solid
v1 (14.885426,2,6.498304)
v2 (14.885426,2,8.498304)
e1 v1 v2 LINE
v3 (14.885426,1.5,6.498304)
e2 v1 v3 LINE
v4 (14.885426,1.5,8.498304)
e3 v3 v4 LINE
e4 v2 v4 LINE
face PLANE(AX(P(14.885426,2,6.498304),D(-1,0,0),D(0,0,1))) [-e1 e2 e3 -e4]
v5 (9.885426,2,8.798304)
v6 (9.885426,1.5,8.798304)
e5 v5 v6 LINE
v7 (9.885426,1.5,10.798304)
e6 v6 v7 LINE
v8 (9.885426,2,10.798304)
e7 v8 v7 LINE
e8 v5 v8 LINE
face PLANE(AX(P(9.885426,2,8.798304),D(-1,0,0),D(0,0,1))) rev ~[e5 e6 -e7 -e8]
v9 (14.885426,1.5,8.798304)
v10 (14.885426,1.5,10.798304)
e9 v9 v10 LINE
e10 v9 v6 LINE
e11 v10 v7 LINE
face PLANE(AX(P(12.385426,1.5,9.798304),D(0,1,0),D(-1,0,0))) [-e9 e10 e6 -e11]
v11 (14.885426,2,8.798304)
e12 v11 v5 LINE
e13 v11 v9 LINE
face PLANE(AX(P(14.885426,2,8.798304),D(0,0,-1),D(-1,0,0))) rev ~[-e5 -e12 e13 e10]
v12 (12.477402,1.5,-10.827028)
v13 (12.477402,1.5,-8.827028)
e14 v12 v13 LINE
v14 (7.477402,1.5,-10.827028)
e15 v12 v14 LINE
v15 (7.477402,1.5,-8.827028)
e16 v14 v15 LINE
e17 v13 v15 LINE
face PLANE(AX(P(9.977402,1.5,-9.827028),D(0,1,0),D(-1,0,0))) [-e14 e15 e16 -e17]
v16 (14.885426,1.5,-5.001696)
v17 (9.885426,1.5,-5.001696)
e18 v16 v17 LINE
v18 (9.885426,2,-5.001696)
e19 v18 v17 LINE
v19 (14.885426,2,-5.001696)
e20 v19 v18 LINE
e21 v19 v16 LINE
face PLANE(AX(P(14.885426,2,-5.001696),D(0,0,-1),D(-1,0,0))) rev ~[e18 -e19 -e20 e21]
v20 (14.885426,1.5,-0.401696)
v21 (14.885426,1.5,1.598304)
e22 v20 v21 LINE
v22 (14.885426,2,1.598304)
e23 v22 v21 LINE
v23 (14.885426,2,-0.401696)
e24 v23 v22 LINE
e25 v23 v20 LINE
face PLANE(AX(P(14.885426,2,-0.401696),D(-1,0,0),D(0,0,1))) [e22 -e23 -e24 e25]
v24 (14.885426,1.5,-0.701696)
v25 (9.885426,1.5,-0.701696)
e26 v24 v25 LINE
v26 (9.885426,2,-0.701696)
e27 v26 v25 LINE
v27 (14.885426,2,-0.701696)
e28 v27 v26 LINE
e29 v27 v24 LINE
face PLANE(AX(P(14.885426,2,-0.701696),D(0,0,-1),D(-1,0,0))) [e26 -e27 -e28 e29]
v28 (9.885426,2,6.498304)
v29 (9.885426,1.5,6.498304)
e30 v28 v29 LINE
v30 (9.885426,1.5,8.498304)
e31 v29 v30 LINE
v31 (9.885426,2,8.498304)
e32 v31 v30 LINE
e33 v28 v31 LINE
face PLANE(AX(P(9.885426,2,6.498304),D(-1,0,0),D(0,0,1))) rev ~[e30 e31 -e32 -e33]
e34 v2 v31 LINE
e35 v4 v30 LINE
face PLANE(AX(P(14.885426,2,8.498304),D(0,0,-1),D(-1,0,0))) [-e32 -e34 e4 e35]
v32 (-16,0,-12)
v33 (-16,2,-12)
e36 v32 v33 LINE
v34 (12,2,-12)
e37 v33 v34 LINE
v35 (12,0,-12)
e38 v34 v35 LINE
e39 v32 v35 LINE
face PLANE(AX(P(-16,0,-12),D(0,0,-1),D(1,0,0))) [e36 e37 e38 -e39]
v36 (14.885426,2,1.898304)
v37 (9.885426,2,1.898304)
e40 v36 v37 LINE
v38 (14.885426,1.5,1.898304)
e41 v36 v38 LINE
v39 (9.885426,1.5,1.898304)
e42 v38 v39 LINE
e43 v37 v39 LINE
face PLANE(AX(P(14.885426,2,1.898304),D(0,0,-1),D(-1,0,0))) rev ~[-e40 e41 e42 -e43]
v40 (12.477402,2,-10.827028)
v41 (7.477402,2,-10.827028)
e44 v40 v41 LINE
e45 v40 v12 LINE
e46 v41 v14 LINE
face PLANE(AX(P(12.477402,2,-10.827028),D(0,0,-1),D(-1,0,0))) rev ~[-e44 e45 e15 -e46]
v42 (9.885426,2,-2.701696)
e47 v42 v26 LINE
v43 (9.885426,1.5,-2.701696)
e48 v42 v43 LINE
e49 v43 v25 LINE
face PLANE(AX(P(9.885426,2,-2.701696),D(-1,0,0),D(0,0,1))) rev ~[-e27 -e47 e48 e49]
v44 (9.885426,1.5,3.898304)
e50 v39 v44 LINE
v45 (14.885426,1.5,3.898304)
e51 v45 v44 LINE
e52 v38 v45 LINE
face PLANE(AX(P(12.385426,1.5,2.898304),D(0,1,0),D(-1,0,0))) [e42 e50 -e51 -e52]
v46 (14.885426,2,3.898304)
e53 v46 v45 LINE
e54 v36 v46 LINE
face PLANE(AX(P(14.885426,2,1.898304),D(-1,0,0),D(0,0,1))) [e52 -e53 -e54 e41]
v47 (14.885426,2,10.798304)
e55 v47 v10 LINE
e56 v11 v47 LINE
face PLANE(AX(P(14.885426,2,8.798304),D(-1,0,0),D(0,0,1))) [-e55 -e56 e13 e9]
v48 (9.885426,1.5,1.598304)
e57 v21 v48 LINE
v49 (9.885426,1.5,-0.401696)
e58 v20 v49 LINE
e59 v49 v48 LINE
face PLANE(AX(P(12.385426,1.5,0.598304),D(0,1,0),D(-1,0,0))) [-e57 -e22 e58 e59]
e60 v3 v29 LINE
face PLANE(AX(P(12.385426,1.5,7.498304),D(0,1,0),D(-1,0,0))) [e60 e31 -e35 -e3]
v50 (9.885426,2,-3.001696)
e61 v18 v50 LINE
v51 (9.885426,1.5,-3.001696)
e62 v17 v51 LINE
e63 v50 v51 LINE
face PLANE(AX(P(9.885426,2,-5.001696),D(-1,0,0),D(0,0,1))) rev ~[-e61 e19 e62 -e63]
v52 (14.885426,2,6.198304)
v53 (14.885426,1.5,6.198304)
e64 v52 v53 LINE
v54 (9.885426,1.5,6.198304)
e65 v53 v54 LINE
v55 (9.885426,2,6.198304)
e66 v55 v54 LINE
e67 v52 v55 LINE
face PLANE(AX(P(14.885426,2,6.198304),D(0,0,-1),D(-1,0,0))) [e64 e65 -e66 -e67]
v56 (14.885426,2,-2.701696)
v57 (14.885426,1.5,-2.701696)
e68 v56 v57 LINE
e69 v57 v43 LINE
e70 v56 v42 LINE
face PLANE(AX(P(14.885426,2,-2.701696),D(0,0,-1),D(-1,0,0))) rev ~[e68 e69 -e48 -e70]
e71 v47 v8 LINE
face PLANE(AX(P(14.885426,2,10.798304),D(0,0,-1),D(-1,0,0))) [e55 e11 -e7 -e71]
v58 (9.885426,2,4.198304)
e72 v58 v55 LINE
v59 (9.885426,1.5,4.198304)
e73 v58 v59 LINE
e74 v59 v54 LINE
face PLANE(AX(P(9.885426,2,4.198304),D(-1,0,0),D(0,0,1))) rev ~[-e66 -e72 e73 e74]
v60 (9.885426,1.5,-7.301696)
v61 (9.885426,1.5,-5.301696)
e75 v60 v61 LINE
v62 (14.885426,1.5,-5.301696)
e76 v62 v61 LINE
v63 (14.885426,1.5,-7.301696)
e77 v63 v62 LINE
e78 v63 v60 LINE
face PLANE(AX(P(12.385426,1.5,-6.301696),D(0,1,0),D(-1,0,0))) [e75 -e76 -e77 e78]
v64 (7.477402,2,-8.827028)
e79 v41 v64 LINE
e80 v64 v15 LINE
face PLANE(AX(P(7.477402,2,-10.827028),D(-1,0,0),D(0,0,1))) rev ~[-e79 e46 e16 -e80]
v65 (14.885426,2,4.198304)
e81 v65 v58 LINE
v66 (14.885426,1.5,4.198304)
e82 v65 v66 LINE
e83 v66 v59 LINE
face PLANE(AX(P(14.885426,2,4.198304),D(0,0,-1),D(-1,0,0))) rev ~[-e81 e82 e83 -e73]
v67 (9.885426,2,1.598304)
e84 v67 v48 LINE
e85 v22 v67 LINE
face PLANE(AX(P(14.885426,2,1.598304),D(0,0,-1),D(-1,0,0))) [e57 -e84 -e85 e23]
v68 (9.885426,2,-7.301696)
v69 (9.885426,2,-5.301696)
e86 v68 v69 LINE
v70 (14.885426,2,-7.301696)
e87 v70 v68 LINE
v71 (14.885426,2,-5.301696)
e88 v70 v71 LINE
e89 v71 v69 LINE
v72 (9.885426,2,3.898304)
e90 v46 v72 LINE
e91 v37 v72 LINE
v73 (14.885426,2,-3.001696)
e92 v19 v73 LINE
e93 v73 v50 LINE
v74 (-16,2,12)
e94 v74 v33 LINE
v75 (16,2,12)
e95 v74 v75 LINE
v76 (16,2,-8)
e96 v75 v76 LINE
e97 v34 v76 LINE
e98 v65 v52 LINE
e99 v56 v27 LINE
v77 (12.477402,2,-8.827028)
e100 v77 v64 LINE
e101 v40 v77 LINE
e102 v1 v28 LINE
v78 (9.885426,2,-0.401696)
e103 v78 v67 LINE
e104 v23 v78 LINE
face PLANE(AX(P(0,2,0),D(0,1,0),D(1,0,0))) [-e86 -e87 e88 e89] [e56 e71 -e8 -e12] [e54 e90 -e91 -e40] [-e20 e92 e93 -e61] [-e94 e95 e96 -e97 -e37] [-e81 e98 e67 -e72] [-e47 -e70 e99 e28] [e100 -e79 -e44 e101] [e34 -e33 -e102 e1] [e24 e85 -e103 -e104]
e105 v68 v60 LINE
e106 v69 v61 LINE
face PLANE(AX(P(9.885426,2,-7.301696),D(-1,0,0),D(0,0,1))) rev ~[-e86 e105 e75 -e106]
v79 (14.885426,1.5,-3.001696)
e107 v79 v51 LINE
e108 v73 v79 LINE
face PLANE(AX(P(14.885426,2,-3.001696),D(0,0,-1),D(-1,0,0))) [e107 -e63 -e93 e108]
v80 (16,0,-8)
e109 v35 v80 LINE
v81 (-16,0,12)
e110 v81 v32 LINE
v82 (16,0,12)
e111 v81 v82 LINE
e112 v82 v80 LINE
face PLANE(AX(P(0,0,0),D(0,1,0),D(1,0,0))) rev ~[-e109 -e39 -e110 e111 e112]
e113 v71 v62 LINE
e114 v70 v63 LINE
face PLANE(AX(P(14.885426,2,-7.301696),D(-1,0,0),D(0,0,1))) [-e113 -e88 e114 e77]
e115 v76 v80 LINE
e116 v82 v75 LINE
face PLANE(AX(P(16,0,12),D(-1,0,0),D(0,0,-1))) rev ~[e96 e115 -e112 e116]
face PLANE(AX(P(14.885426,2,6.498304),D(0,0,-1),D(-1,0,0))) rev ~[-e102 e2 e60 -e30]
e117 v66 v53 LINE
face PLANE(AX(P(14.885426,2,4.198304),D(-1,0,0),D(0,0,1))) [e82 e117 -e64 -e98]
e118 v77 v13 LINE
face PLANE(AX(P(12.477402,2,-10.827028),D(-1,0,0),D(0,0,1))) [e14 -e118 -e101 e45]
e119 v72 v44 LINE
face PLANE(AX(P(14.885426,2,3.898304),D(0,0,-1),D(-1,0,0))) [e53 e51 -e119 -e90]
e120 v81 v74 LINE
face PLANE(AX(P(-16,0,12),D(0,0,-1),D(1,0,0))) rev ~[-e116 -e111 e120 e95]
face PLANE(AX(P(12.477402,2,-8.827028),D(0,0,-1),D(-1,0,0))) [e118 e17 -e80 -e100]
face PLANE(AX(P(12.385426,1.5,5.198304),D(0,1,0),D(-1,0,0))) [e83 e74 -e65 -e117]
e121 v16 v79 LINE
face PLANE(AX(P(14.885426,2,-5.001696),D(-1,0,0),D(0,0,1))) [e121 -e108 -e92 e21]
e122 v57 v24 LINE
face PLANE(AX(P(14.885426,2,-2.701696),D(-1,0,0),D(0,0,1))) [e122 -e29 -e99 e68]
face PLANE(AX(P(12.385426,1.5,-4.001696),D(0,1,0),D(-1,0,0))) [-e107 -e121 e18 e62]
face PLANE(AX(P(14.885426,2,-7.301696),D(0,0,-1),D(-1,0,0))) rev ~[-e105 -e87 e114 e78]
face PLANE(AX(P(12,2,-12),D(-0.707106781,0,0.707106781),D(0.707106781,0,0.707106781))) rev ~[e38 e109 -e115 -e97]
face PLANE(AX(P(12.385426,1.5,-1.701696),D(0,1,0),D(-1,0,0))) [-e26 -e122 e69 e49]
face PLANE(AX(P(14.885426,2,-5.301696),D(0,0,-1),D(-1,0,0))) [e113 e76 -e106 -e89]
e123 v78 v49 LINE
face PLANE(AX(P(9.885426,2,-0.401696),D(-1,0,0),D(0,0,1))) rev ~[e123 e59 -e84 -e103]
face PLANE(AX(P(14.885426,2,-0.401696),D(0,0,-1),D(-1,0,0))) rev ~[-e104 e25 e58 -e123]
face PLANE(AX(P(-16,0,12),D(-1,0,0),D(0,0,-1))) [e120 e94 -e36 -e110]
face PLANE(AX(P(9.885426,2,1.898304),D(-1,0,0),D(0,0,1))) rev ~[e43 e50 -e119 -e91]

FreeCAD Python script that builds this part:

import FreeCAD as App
import Part
import Sketcher
from FreeCAD import Vector


def add_polygon(sketch, points):
    """Adds a closed chain of lines whose ends are joined by coincident constraints."""
    first, n = sketch.GeometryCount, len(points)
    for a, b in zip(points, points[1:] + points[:1]):
        sketch.addGeometry(Part.LineSegment(App.Vector(*a, 0), App.Vector(*b, 0)), False)
    for i in range(n):
        sketch.addConstraint(Sketcher.Constraint("Coincident", first + i, 2, first + (i + 1) % n, 1))

doc = App.newDocument("Part")
body = doc.addObject("PartDesign::Body", "Body")

# Sketch on XZ plane
sketch1 = doc.addObject("Sketcher::SketchObject", "Sketch")
body.addObject(sketch1)
sketch1.AttachmentSupport = (doc.XZ_Plane, [""])
sketch1.MapMode = "FlatFace"
add_polygon(sketch1, [(-16, -12), (-16, 12), (16, 12), (16, -12)])  # lines 0-3
sketch1.addConstraint([
    Sketcher.Constraint("Vertical", 0),
    Sketcher.Constraint("Horizontal", 1),
    Sketcher.Constraint("Vertical", 2),
    Sketcher.Constraint("Horizontal", 3),
    Sketcher.Constraint("Symmetric", 0, 2, 2, 2, -1, 1),
    Sketcher.Constraint("DistanceX", 1, 1, 1, 2, 32.0),
    Sketcher.Constraint("DistanceY", 0, 1, 0, 2, 24.0),
])
pad1 = doc.addObject("PartDesign::Pad", "Pad")
body.addObject(pad1)
pad1.Profile = sketch1
pad1.Length = 2
pad1.Reversed = True

# Sketch on XZ plane
sketch2 = doc.addObject("Sketcher::SketchObject", "Sketch001")
body.addObject(sketch2)
sketch2.AttachmentSupport = (doc.XZ_Plane, [""])
sketch2.MapMode = "FlatFace"
sketch2.AttachmentOffset = App.Placement(Vector(0, 0, -2), App.Rotation())
add_polygon(sketch2, [(16, -12), (12, -12), (16, -8)])  # lines 0-2
sketch2.addConstraint([
    Sketcher.Constraint("Horizontal", 0),
    Sketcher.Constraint("Vertical", 2),
    Sketcher.Constraint("Equal", 0, 2),
    Sketcher.Constraint("DistanceX", 0, 2, 0, 1, 4.0),
    Sketcher.Constraint("DistanceX", -1, 1, 0, 2, 12.0),
    Sketcher.Constraint("DistanceY", 0, 2, -1, 1, 12.0),
])
pocket1 = doc.addObject("PartDesign::Pocket", "Pocket")
body.addObject(pocket1)
pocket1.Profile = sketch2
pocket1.Length = 2
pocket1.Reversed = True

# Sketch on XZ plane
sketch3 = doc.addObject("Sketcher::SketchObject", "Sketch002")
body.addObject(sketch3)
sketch3.AttachmentSupport = (doc.XZ_Plane, [""])
sketch3.MapMode = "FlatFace"
sketch3.AttachmentOffset = App.Placement(Vector(0, 0, -2), App.Rotation())
add_polygon(sketch3, [(14.885426, 8.498304), (14.885426, 6.498304), (9.885426, 6.498304), (9.885426, 8.498304)])  # lines 0-3
add_polygon(sketch3, [(14.885426, 10.798304), (14.885426, 8.798304), (9.885426, 8.798304), (9.885426, 10.798304)])  # lines 4-7
add_polygon(sketch3, [(14.885426, 6.198304), (14.885426, 4.198304), (9.885426, 4.198304), (9.885426, 6.198304)])  # lines 8-11
add_polygon(sketch3, [(14.885426, 3.898304), (14.885426, 1.898304), (9.885426, 1.898304), (9.885426, 3.898304)])  # lines 12-15
add_polygon(sketch3, [(14.885426, 1.598304), (14.885426, -0.401696), (9.885426, -0.401696), (9.885426, 1.598304)])  # lines 16-19
add_polygon(sketch3, [(14.885426, -0.701696), (14.885426, -2.701696), (9.885426, -2.701696), (9.885426, -0.701696)])  # lines 20-23
add_polygon(sketch3, [(14.885426, -3.001696), (14.885426, -5.001696), (9.885426, -5.001696), (9.885426, -3.001696)])  # lines 24-27
add_polygon(sketch3, [(14.885426, -5.301696), (14.885426, -7.301696), (9.885426, -7.301696), (9.885426, -5.301696)])  # lines 28-31
add_polygon(sketch3, [(12.477402, -8.827028), (12.477402, -10.827028), (7.477402, -10.827028), (7.477402, -8.827028)])  # lines 32-35
sketch3.addConstraint([
    Sketcher.Constraint("Vertical", 0),
    Sketcher.Constraint("Horizontal", 1),
    Sketcher.Constraint("Vertical", 2),
    Sketcher.Constraint("Horizontal", 3),
    Sketcher.Constraint("Vertical", 4),
    Sketcher.Constraint("Horizontal", 5),
    Sketcher.Constraint("Vertical", 6),
    Sketcher.Constraint("Horizontal", 7),
    Sketcher.Constraint("Vertical", 8),
    Sketcher.Constraint("Horizontal", 9),
    Sketcher.Constraint("Vertical", 10),
    Sketcher.Constraint("Horizontal", 11),
    Sketcher.Constraint("Vertical", 12),
    Sketcher.Constraint("Horizontal", 13),
    Sketcher.Constraint("Vertical", 14),
    Sketcher.Constraint("Horizontal", 15),
    Sketcher.Constraint("Vertical", 16),
    Sketcher.Constraint("Horizontal", 17),
    Sketcher.Constraint("Vertical", 18),
    Sketcher.Constraint("Horizontal", 19),
    Sketcher.Constraint("Vertical", 20),
    Sketcher.Constraint("Horizontal", 21),
    Sketcher.Constraint("Vertical", 22),
    Sketcher.Constraint("Horizontal", 23),
    Sketcher.Constraint("Vertical", 24),
    Sketcher.Constraint("Horizontal", 25),
    Sketcher.Constraint("Vertical", 26),
    Sketcher.Constraint("Horizontal", 27),
    Sketcher.Constraint("Vertical", 28),
    Sketcher.Constraint("Horizontal", 29),
    Sketcher.Constraint("Vertical", 30),
    Sketcher.Constraint("Horizontal", 31),
    Sketcher.Constraint("Vertical", 32),
    Sketcher.Constraint("Horizontal", 33),
    Sketcher.Constraint("Vertical", 34),
    Sketcher.Constraint("Horizontal", 35),
    Sketcher.Constraint("Vertical", 3, 2, 4, 2),
    Sketcher.Constraint("Vertical", 2, 2, 5, 2),
    Sketcher.Constraint("Vertical", 7, 2, 8, 2),
    Sketcher.Constraint("Vertical", 6, 2, 9, 2),
    Sketcher.Constraint("Vertical", 11, 2, 12, 2),
    Sketcher.Constraint("Vertical", 10, 2, 13, 2),
    Sketcher.Constraint("Vertical", 15, 2, 16, 2),
    Sketcher.Constraint("Vertical", 14, 2, 17, 2),
    Sketcher.Constraint("Vertical", 19, 2, 20, 2),
    Sketcher.Constraint("Vertical", 18, 2, 21, 2),
    Sketcher.Constraint("Vertical", 23, 2, 24, 2),
    Sketcher.Constraint("Vertical", 22, 2, 25, 2),
    Sketcher.Constraint("Vertical", 27, 2, 28, 2),
    Sketcher.Constraint("Vertical", 26, 2, 29, 2),
    Sketcher.Constraint("Equal", 31, 33),
    Sketcher.Constraint("Equal", 2, 4),
    Sketcher.Constraint("Equal", 6, 8),
    Sketcher.Constraint("Equal", 10, 12),
    Sketcher.Constraint("Equal", 14, 16),
    Sketcher.Constraint("Equal", 18, 20),
    Sketcher.Constraint("Equal", 22, 24),
    Sketcher.Constraint("Equal", 26, 28),
    Sketcher.Constraint("Equal", 30, 32),
    Sketcher.Constraint("DistanceX", 1, 2, 1, 1, 5.0),
    Sketcher.Constraint("DistanceY", 0, 2, 0, 1, 2.0),
    Sketcher.Constraint("DistanceY", 3, 2, 4, 2, 0.3),
    Sketcher.Constraint("DistanceY", 8, 2, 0, 2, 2.3),
    Sketcher.Constraint("DistanceY", 12, 2, 8, 2, 2.3),
    Sketcher.Constraint("DistanceY", 16, 2, 12, 2, 2.3),
    Sketcher.Constraint("DistanceY", 20, 2, 16, 2, 2.3),
    Sketcher.Constraint("DistanceY", 24, 2, 20, 2, 2.3),
    Sketcher.Constraint("DistanceY", 28, 2, 24, 2, 2.3),
    Sketcher.Constraint("DistanceX", -1, 1, 32, 2, 12.477402),
    Sketcher.Constraint("DistanceY", 32, 2, -1, 1, 10.827028),
    Sketcher.Constraint("DistanceX", -1, 1, 0, 2, 14.885426),
    Sketcher.Constraint("DistanceY", -1, 1, 0, 2, 6.498304),
])
pocket2 = doc.addObject("PartDesign::Pocket", "Pocket001")
body.addObject(pocket2)
pocket2.Profile = sketch3
pocket2.Length = 0.5
pocket2.Reversed = True

doc.recompute()
